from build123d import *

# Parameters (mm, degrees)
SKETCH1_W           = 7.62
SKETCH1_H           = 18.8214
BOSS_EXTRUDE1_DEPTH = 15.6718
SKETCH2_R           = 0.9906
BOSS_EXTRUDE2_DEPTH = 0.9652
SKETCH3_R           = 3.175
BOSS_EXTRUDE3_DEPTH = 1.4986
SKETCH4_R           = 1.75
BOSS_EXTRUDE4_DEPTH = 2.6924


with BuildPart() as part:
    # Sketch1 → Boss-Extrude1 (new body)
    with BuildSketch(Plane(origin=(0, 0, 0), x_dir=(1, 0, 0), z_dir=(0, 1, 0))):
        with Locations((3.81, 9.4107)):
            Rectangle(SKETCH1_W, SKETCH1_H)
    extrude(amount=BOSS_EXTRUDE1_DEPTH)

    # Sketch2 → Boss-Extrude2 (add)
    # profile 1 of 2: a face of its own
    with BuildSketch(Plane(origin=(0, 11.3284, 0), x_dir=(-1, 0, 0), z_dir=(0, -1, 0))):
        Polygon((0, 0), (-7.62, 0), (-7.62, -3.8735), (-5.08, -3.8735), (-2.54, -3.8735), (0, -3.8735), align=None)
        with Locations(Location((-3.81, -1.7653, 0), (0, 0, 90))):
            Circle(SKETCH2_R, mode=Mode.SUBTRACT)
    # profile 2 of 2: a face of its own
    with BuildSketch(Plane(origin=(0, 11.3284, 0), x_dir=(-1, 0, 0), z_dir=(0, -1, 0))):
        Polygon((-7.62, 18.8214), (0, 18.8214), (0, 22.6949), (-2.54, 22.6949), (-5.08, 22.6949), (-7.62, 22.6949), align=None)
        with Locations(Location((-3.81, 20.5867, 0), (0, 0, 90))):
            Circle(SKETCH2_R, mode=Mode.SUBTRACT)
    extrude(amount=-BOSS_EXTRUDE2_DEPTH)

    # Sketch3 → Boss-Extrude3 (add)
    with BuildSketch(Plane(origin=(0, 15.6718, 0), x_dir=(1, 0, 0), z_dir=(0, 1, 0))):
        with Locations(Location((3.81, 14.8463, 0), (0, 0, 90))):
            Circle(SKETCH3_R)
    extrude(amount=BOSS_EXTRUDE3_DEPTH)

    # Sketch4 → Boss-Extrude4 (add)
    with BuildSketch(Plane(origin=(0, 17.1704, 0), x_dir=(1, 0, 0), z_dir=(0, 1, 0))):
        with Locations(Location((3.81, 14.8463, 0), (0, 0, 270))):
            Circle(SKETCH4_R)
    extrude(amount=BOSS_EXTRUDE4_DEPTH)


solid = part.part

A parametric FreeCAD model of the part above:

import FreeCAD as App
import Part
import Sketcher
from FreeCAD import Vector
Q = App.Units.Quantity


def add_polygon(sketch, points):
    """Adds a closed chain of lines whose ends are joined by coincident constraints."""
    first, n = sketch.GeometryCount, len(points)
    for a, b in zip(points, points[1:] + points[:1]):
        sketch.addGeometry(Part.LineSegment(App.Vector(*a, 0), App.Vector(*b, 0)), False)
    for i in range(n):
        sketch.addConstraint(Sketcher.Constraint("Coincident", first + i, 2, first + (i + 1) % n, 1))

doc = App.newDocument("Part")
body = doc.addObject("PartDesign::Body", "Body")

# Sketch on XZ plane
sketch1 = body.newObject("Sketcher::SketchObject", "Sketch")
sketch1.AttachmentSupport = (doc.getObject("XZ_Plane"), [""])
sketch1.MapMode = "FlatFace"
add_polygon(sketch1, [(0, -19), (0, 0), (8, 0), (8, -19)])  # lines 0-3
sketch1.addConstraint([
    Sketcher.Constraint("Vertical", 0),
    Sketcher.Constraint("Horizontal", 1),
    Sketcher.Constraint("Vertical", 2),
    Sketcher.Constraint("Horizontal", 3),
    Sketcher.Constraint("Coincident", 0, 2, -1, 1),
    Sketcher.Constraint("DistanceX", 1, 1, 1, 2, Q("0.3 in")),
    Sketcher.Constraint("DistanceY", 0, 1, 0, 2, Q("0.741 in")),
])
pad1 = body.newObject("PartDesign::Pad", "Pad")
pad1.Profile = sketch1
pad1.Length = Q("0.617 in")
pad1.Reversed = True

# Sketch on XZ plane
sketch2 = body.newObject("Sketcher::SketchObject", "Sketch001")
sketch2.AttachmentSupport = (doc.getObject("XZ_Plane"), [""])
sketch2.MapMode = "FlatFace"
sketch2.AttachmentOffset = App.Placement(Vector(0, 0, -0.446 * 25.4), App.Rotation())
add_polygon(sketch2, [(0, 0), (7.6, 0), (7.6, 3.9), (0, 3.9)])  # lines 0-3
sketch2.addGeometry(Part.Circle(Vector(3.8, 1.8, 0), Vector(0, 0, 1), 1), False)  # 4
add_polygon(sketch2, [(7.6, -18.8), (0, -18.8), (0, -22.7), (7.6, -22.7)])  # lines 5-8
sketch2.addGeometry(Part.Circle(Vector(3.8, -20.6, 0), Vector(0, 0, 1), 1), False)  # 9
sketch2.addConstraint([
    Sketcher.Constraint("Horizontal", 0),
    Sketcher.Constraint("Vertical", 1),
    Sketcher.Constraint("Horizontal", 2),
    Sketcher.Constraint("Vertical", 3),
    Sketcher.Constraint("Horizontal", 5),
    Sketcher.Constraint("Vertical", 6),
    Sketcher.Constraint("Horizontal", 7),
    Sketcher.Constraint("Vertical", 8),
    Sketcher.Constraint("Coincident", 3, 2, -1, 1),
    Sketcher.Constraint("Equal", 4, 9),
    Sketcher.Constraint("PointOnObject", 5, 2, -2),
    Sketcher.Constraint("Vertical", 4, 3, 9, 3),
    Sketcher.Constraint("Vertical", 1, 2, 7, 2),
    Sketcher.Constraint("Equal", 3, 6),
    Sketcher.Constraint("Diameter", 4, Q("0.078 in")),
    Sketcher.Constraint("DistanceX", 0, 1, 0, 2, Q("0.3 in")),
    Sketcher.Constraint("DistanceX", -1, 1, 4, 3, Q("0.15 in")),
    Sketcher.Constraint("DistanceY", 9, 3, 4, 3, Q("0.88 in")),
    Sketcher.Constraint("DistanceY", 1, 1, 1, 2, Q("0.1525 in")),
    Sketcher.Constraint("DistanceY", 5, 2, -1, 1, Q("0.741 in")),
    Sketcher.Constraint("DistanceY", 4, 3, 1, 2, Q("0.083 in")),
])
pad2 = body.newObject("PartDesign::Pad", "Pad001")
pad2.Profile = sketch2
pad2.Length = Q("0.038 in")
pad2.Reversed = True

# Sketch on XZ plane
sketch3 = body.newObject("Sketcher::SketchObject", "Sketch002")
sketch3.AttachmentSupport = (doc.getObject("XZ_Plane"), [""])
sketch3.MapMode = "FlatFace"
sketch3.AttachmentOffset = App.Placement(Vector(0, 0, -0.617 * 25.4), App.Rotation())
sketch3.addGeometry(Part.Circle(Vector(3.8, -14.8, 0), Vector(0, 0, 1), 3.2), False)
sketch3.addConstraint([
    Sketcher.Constraint("Diameter", 0, Q("0.25 in")),
    Sketcher.Constraint("DistanceX", -1, 1, 0, 3, Q("0.15 in")),
    Sketcher.Constraint("DistanceY", 0, 3, -1, 1, Q("0.5845 in")),
])
pad3 = body.newObject("PartDesign::Pad", "Pad002")
pad3.Profile = sketch3
pad3.Length = Q("0.059 in")
pad3.Reversed = True

# Sketch on XZ plane
sketch4 = body.newObject("Sketcher::SketchObject", "Sketch003")
sketch4.AttachmentSupport = (doc.getObject("XZ_Plane"), [""])
sketch4.MapMode = "FlatFace"
sketch4.AttachmentOffset = App.Placement(Vector(0, 0, -0.676 * 25.4), App.Rotation())
sketch4.addGeometry(Part.Circle(Vector(3.8, -14.8, 0), Vector(0, 0, 1), 1.8), False)
sketch4.addConstraint([
    Sketcher.Constraint("Diameter", 0, Q("3.5 mm")),
    Sketcher.Constraint("DistanceX", -1, 1, 0, 3, Q("0.15 in")),
    Sketcher.Constraint("DistanceY", 0, 3, -1, 1, Q("0.5845 in")),
])
pad4 = body.newObject("PartDesign::Pad", "Pad003")
pad4.Profile = sketch4
pad4.Length = Q("0.106 in")
pad4.Reversed = True

doc.recompute()
